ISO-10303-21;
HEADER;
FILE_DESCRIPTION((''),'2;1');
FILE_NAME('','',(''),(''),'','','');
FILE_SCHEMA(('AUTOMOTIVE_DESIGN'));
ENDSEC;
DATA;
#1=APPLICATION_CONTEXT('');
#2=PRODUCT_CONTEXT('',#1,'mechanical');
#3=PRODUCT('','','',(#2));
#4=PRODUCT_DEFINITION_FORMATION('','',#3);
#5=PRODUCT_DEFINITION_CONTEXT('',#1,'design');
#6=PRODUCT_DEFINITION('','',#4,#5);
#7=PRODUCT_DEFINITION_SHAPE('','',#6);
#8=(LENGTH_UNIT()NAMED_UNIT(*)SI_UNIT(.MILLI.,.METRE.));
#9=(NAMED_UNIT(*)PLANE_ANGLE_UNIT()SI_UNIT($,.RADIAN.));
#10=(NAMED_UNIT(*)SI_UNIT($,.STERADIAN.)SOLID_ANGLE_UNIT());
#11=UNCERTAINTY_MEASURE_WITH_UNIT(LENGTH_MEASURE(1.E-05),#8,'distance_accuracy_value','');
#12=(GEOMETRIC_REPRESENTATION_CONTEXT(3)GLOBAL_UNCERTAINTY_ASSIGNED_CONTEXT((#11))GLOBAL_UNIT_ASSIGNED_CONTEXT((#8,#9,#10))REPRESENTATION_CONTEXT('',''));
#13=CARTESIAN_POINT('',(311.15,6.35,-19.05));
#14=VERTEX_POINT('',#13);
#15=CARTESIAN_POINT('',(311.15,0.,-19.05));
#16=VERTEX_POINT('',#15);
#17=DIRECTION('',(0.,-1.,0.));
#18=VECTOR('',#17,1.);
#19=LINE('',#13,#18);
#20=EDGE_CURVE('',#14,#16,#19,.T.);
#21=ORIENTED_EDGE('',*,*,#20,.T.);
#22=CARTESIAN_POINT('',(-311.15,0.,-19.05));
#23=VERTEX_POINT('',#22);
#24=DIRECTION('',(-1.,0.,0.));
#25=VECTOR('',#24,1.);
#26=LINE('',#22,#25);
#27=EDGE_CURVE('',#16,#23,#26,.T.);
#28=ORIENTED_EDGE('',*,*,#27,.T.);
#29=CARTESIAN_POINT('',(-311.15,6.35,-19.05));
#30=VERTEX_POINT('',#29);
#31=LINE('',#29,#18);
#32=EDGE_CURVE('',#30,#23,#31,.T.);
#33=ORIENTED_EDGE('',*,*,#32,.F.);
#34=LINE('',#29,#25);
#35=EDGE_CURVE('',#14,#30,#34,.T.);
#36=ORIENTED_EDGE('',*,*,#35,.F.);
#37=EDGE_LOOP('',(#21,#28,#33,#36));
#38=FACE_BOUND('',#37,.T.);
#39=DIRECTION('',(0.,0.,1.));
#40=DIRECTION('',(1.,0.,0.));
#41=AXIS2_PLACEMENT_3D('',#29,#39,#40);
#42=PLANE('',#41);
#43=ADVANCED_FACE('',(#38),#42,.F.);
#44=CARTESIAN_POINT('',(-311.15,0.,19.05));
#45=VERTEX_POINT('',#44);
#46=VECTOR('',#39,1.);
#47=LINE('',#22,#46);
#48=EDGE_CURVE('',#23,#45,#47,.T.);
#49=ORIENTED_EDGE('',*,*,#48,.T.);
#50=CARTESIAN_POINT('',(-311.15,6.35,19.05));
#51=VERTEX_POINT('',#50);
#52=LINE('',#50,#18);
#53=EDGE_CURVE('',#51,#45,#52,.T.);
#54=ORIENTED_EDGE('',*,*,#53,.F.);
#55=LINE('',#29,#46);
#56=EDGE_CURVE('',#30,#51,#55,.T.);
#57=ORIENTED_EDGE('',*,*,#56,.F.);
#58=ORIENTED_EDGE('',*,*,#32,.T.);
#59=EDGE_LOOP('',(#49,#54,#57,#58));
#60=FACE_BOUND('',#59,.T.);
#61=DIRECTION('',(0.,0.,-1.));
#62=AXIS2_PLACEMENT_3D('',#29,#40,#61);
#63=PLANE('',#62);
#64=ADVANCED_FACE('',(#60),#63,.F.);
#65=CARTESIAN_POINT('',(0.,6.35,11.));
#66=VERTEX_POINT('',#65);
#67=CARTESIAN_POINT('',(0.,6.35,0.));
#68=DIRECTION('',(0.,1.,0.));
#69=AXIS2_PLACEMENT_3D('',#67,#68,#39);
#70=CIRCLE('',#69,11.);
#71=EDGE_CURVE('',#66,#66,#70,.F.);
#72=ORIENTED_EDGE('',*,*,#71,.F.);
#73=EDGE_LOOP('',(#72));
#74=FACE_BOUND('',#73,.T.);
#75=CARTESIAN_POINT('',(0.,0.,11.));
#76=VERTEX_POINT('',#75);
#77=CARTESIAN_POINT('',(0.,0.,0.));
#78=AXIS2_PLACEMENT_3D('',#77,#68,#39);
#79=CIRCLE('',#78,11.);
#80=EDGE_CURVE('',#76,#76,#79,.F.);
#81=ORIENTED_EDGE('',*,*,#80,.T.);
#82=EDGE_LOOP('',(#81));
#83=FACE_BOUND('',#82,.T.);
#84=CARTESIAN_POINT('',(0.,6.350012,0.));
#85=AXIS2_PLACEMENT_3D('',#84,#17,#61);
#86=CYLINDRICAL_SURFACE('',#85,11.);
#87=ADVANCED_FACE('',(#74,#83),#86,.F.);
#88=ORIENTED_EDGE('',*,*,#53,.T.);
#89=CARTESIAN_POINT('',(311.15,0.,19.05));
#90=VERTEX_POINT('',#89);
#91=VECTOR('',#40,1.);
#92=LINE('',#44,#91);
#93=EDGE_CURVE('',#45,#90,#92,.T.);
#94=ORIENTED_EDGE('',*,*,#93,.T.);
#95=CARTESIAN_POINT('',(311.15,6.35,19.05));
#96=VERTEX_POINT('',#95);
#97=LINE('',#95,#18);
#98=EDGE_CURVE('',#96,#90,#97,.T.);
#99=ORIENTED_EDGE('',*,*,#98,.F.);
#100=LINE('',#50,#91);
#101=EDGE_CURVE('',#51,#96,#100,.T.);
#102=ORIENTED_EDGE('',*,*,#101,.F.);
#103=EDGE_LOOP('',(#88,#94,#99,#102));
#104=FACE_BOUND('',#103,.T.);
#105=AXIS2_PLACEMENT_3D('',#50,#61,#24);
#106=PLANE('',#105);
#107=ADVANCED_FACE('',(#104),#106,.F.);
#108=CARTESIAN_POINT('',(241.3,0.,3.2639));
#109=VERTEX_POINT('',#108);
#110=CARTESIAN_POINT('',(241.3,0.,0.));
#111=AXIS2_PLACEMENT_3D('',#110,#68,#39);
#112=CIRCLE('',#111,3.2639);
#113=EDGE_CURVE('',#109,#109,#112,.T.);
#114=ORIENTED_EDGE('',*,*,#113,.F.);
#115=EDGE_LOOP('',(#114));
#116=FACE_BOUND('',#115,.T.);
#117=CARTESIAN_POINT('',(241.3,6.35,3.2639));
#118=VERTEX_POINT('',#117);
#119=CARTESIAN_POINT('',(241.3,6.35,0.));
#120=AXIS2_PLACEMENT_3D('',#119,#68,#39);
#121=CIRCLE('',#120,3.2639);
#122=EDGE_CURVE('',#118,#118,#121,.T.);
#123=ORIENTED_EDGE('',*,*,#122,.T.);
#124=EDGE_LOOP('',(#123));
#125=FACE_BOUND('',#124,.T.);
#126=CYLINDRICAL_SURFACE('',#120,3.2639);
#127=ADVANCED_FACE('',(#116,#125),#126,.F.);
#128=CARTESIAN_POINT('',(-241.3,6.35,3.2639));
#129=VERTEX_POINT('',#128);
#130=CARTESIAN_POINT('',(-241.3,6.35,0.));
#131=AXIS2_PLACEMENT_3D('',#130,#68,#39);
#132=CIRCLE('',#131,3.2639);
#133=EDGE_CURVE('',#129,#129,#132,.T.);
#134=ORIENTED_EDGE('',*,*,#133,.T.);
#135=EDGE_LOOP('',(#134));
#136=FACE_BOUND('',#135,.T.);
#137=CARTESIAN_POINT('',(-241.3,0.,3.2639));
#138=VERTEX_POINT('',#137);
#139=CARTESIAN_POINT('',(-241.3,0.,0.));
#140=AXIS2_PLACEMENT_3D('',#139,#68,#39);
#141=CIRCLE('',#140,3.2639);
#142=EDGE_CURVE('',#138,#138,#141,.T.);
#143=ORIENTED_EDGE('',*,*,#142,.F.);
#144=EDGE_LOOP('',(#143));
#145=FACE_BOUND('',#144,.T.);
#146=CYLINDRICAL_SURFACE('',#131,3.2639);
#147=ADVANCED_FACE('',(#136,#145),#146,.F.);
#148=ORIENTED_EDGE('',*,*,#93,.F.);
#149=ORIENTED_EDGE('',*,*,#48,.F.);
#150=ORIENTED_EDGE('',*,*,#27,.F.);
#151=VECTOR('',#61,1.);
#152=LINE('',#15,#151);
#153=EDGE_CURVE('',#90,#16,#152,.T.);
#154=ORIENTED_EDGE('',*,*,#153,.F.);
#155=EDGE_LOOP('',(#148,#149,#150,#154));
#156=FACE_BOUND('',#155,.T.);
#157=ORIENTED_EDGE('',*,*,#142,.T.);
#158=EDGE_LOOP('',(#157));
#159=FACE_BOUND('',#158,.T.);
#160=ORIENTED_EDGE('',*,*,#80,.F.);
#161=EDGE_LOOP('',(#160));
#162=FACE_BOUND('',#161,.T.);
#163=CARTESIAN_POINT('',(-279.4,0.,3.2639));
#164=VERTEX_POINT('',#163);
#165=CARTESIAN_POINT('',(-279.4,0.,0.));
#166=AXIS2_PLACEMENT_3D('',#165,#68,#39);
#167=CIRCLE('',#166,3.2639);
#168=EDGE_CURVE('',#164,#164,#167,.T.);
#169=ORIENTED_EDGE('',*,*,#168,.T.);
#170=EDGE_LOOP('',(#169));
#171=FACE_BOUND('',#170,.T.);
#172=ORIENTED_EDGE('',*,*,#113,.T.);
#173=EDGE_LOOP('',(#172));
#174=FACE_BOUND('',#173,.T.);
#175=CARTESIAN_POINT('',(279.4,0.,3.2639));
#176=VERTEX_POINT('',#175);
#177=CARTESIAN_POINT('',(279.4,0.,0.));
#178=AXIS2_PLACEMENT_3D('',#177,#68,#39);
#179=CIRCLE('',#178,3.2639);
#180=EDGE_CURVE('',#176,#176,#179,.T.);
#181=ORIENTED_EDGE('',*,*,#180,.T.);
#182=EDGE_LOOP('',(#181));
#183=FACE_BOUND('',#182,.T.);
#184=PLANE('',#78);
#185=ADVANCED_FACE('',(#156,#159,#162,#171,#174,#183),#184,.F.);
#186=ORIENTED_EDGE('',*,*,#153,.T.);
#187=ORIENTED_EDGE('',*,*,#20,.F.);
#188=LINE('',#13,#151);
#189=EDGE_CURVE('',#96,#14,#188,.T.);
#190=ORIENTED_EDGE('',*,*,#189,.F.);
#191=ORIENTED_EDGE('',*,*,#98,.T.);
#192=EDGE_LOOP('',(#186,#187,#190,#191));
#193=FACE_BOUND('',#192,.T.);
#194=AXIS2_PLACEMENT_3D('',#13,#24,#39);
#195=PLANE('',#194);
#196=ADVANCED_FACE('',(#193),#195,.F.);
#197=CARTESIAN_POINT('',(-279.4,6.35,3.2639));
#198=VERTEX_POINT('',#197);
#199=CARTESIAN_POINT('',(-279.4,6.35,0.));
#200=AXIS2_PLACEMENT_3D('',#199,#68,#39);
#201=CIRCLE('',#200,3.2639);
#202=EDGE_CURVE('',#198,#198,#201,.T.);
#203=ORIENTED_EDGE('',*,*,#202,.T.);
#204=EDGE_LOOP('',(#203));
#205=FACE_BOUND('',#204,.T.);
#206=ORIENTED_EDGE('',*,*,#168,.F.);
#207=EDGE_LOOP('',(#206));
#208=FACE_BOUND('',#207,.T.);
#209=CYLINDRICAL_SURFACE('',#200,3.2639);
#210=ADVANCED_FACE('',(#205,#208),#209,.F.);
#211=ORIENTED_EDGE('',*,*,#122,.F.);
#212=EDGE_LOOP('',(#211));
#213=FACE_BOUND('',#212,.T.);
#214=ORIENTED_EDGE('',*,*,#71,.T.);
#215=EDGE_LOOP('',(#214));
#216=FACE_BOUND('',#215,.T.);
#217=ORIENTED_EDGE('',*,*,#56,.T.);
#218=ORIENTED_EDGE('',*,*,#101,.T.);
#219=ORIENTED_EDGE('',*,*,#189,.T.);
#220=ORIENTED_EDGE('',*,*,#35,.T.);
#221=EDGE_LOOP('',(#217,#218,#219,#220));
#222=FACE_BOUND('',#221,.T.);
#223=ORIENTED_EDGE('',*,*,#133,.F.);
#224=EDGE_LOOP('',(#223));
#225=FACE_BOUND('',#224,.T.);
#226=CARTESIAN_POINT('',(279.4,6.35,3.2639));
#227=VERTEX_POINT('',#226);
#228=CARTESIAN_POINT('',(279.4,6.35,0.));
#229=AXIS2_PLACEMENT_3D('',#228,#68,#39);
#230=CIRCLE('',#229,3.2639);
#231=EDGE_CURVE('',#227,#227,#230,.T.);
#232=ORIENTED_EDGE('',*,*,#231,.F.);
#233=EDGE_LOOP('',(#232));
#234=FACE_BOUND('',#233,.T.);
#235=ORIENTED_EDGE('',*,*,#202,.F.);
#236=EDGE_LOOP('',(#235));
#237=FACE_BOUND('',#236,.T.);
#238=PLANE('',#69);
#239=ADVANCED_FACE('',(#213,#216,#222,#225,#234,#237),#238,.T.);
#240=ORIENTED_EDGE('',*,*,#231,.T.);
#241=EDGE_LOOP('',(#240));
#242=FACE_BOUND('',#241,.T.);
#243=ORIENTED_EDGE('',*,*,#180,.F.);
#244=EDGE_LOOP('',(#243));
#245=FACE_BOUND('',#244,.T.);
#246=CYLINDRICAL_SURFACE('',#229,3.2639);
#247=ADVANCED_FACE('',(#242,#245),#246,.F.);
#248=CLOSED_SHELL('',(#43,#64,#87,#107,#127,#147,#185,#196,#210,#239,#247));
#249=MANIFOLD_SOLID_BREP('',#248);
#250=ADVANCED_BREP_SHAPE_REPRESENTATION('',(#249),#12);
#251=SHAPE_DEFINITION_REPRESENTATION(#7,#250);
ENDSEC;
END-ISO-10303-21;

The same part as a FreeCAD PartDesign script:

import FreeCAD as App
import Part
import Sketcher

V = App.Vector
Q = App.Units.Quantity


def add_polygon(sketch, points):
    """Adds a closed chain of lines whose ends are joined by coincident constraints."""
    first, n = sketch.GeometryCount, len(points)
    for a, b in zip(points, points[1:] + points[:1]):
        sketch.addGeometry(Part.LineSegment(App.Vector(*a, 0), App.Vector(*b, 0)), False)
    for i in range(n):
        sketch.addConstraint(Sketcher.Constraint("Coincident", first + i, 2, first + (i + 1) % n, 1))

doc = App.newDocument("Part")
params = doc.addObject("Spreadsheet::Sheet", "Params")
for row, (alias, value) in enumerate([
    ("sketch1_width", "24.5 in"),
    ("sketch1_height", "1.5 in"),
    ("pad1_length", "0.25 in"),
    ("sketch3_diameter", "0.257 in"),
    ("hole_diameter", "0.257 in"),
], start=1):
    params.set(f"A{row}", alias)
    params.set(f"B{row}", "=" + value)
    params.setAlias(f"B{row}", alias)

body = doc.addObject("PartDesign::Body", "Body")

# Sketch on XZ plane
sketch1 = body.newObject("Sketcher::SketchObject", "Sketch")
sketch1.AttachmentSupport = (doc.getObject("XZ_Plane"), [""])
sketch1.MapMode = "FlatFace"
add_polygon(sketch1, [(-311, -19), (-311, 19), (311, 19), (311, -19)])  # lines 0-3
sketch1.addConstraint(Sketcher.Constraint("Vertical", 0))
sketch1.addConstraint(Sketcher.Constraint("Horizontal", 1))
sketch1.addConstraint(Sketcher.Constraint("Vertical", 2))
sketch1.addConstraint(Sketcher.Constraint("Horizontal", 3))
sketch1.addConstraint(Sketcher.Constraint("Symmetric", 0, 2, 2, 2, -1, 1))
sketch1.addConstraint(Sketcher.Constraint("DistanceX", 1, 1, 1, 2, Q("24.5 in")))
sketch1.addConstraint(Sketcher.Constraint("DistanceY", 0, 1, 0, 2, Q("1.5 in")))
sketch1.setExpression("Constraints[9]", "Params.sketch1_width")
sketch1.setExpression("Constraints[10]", "Params.sketch1_height")
pad1 = body.newObject("PartDesign::Pad", "Pad")
pad1.Profile = sketch1
pad1.setExpression("Length", "Params.pad1_length")
pad1.Reversed = True

# Sketch on XZ plane
sketch2 = body.newObject("Sketcher::SketchObject", "Sketch001")
sketch2.AttachmentSupport = (doc.getObject("XZ_Plane"), [""])
sketch2.MapMode = "FlatFace"
sketch2.AttachmentOffset = App.Placement(V(0, 0, -0.25 * 25.4), App.Rotation())
sketch2.addGeometry(Part.Circle(V(0, 0, 0), V(0, 0, 1), 11), False)
sketch2.addConstraint(Sketcher.Constraint("Coincident", 0, 3, -1, 1))
sketch2.addConstraint(Sketcher.Constraint("Diameter", 0, Q("22 mm")))
pocket1 = body.newObject("PartDesign::Pocket", "Pocket")
pocket1.Profile = sketch2
pocket1.Type = "ThroughAll"
pocket1.Midplane = True

# Sketch on XZ plane
sketch3 = body.newObject("Sketcher::SketchObject", "Sketch002")
sketch3.AttachmentSupport = (doc.getObject("XZ_Plane"), [""])
sketch3.MapMode = "FlatFace"
sketch3.AttachmentOffset = App.Placement(V(0, 0, -0.25 * 25.4), App.Rotation())
sketch3.addGeometry(Part.Circle(V(-279.4, 0, 0), V(0, 0, 1), 3.3), False)
sketch3.addGeometry(Part.Circle(V(-241.3, 0, 0), V(0, 0, 1), 3.3), False)
sketch3.addConstraint(Sketcher.Constraint("Equal", 0, 1))
sketch3.addConstraint(Sketcher.Constraint("PointOnObject", 0, 3, -1))
sketch3.addConstraint(Sketcher.Constraint("PointOnObject", 1, 3, -1))
sketch3.addConstraint(Sketcher.Constraint("Diameter", 0, Q("0.257 in")))
sketch3.addConstraint(Sketcher.Constraint("DistanceX", 0, 3, -1, 1, Q("11 in")))
sketch3.addConstraint(Sketcher.Constraint("DistanceX", 1, 3, -1, 1, Q("9.5 in")))
sketch3.setExpression("Constraints[3]", "Params.sketch3_diameter")
doc.recompute()
hole = body.newObject("PartDesign::Hole", "Hole")
hole.Profile = sketch3
hole.ThreadType = "None"
hole.setExpression("Diameter", "Params.hole_diameter")
hole.DepthType = "ThroughAll"
hole.Reversed = True
doc.recompute()

mirrored = body.newObject("PartDesign::Mirrored", "Mirrored")
mirrored.Originals = [hole]
mirrored.MirrorPlane = (doc.getObject("YZ_Plane"), [""])
body.Tip = mirrored

doc.recompute()
